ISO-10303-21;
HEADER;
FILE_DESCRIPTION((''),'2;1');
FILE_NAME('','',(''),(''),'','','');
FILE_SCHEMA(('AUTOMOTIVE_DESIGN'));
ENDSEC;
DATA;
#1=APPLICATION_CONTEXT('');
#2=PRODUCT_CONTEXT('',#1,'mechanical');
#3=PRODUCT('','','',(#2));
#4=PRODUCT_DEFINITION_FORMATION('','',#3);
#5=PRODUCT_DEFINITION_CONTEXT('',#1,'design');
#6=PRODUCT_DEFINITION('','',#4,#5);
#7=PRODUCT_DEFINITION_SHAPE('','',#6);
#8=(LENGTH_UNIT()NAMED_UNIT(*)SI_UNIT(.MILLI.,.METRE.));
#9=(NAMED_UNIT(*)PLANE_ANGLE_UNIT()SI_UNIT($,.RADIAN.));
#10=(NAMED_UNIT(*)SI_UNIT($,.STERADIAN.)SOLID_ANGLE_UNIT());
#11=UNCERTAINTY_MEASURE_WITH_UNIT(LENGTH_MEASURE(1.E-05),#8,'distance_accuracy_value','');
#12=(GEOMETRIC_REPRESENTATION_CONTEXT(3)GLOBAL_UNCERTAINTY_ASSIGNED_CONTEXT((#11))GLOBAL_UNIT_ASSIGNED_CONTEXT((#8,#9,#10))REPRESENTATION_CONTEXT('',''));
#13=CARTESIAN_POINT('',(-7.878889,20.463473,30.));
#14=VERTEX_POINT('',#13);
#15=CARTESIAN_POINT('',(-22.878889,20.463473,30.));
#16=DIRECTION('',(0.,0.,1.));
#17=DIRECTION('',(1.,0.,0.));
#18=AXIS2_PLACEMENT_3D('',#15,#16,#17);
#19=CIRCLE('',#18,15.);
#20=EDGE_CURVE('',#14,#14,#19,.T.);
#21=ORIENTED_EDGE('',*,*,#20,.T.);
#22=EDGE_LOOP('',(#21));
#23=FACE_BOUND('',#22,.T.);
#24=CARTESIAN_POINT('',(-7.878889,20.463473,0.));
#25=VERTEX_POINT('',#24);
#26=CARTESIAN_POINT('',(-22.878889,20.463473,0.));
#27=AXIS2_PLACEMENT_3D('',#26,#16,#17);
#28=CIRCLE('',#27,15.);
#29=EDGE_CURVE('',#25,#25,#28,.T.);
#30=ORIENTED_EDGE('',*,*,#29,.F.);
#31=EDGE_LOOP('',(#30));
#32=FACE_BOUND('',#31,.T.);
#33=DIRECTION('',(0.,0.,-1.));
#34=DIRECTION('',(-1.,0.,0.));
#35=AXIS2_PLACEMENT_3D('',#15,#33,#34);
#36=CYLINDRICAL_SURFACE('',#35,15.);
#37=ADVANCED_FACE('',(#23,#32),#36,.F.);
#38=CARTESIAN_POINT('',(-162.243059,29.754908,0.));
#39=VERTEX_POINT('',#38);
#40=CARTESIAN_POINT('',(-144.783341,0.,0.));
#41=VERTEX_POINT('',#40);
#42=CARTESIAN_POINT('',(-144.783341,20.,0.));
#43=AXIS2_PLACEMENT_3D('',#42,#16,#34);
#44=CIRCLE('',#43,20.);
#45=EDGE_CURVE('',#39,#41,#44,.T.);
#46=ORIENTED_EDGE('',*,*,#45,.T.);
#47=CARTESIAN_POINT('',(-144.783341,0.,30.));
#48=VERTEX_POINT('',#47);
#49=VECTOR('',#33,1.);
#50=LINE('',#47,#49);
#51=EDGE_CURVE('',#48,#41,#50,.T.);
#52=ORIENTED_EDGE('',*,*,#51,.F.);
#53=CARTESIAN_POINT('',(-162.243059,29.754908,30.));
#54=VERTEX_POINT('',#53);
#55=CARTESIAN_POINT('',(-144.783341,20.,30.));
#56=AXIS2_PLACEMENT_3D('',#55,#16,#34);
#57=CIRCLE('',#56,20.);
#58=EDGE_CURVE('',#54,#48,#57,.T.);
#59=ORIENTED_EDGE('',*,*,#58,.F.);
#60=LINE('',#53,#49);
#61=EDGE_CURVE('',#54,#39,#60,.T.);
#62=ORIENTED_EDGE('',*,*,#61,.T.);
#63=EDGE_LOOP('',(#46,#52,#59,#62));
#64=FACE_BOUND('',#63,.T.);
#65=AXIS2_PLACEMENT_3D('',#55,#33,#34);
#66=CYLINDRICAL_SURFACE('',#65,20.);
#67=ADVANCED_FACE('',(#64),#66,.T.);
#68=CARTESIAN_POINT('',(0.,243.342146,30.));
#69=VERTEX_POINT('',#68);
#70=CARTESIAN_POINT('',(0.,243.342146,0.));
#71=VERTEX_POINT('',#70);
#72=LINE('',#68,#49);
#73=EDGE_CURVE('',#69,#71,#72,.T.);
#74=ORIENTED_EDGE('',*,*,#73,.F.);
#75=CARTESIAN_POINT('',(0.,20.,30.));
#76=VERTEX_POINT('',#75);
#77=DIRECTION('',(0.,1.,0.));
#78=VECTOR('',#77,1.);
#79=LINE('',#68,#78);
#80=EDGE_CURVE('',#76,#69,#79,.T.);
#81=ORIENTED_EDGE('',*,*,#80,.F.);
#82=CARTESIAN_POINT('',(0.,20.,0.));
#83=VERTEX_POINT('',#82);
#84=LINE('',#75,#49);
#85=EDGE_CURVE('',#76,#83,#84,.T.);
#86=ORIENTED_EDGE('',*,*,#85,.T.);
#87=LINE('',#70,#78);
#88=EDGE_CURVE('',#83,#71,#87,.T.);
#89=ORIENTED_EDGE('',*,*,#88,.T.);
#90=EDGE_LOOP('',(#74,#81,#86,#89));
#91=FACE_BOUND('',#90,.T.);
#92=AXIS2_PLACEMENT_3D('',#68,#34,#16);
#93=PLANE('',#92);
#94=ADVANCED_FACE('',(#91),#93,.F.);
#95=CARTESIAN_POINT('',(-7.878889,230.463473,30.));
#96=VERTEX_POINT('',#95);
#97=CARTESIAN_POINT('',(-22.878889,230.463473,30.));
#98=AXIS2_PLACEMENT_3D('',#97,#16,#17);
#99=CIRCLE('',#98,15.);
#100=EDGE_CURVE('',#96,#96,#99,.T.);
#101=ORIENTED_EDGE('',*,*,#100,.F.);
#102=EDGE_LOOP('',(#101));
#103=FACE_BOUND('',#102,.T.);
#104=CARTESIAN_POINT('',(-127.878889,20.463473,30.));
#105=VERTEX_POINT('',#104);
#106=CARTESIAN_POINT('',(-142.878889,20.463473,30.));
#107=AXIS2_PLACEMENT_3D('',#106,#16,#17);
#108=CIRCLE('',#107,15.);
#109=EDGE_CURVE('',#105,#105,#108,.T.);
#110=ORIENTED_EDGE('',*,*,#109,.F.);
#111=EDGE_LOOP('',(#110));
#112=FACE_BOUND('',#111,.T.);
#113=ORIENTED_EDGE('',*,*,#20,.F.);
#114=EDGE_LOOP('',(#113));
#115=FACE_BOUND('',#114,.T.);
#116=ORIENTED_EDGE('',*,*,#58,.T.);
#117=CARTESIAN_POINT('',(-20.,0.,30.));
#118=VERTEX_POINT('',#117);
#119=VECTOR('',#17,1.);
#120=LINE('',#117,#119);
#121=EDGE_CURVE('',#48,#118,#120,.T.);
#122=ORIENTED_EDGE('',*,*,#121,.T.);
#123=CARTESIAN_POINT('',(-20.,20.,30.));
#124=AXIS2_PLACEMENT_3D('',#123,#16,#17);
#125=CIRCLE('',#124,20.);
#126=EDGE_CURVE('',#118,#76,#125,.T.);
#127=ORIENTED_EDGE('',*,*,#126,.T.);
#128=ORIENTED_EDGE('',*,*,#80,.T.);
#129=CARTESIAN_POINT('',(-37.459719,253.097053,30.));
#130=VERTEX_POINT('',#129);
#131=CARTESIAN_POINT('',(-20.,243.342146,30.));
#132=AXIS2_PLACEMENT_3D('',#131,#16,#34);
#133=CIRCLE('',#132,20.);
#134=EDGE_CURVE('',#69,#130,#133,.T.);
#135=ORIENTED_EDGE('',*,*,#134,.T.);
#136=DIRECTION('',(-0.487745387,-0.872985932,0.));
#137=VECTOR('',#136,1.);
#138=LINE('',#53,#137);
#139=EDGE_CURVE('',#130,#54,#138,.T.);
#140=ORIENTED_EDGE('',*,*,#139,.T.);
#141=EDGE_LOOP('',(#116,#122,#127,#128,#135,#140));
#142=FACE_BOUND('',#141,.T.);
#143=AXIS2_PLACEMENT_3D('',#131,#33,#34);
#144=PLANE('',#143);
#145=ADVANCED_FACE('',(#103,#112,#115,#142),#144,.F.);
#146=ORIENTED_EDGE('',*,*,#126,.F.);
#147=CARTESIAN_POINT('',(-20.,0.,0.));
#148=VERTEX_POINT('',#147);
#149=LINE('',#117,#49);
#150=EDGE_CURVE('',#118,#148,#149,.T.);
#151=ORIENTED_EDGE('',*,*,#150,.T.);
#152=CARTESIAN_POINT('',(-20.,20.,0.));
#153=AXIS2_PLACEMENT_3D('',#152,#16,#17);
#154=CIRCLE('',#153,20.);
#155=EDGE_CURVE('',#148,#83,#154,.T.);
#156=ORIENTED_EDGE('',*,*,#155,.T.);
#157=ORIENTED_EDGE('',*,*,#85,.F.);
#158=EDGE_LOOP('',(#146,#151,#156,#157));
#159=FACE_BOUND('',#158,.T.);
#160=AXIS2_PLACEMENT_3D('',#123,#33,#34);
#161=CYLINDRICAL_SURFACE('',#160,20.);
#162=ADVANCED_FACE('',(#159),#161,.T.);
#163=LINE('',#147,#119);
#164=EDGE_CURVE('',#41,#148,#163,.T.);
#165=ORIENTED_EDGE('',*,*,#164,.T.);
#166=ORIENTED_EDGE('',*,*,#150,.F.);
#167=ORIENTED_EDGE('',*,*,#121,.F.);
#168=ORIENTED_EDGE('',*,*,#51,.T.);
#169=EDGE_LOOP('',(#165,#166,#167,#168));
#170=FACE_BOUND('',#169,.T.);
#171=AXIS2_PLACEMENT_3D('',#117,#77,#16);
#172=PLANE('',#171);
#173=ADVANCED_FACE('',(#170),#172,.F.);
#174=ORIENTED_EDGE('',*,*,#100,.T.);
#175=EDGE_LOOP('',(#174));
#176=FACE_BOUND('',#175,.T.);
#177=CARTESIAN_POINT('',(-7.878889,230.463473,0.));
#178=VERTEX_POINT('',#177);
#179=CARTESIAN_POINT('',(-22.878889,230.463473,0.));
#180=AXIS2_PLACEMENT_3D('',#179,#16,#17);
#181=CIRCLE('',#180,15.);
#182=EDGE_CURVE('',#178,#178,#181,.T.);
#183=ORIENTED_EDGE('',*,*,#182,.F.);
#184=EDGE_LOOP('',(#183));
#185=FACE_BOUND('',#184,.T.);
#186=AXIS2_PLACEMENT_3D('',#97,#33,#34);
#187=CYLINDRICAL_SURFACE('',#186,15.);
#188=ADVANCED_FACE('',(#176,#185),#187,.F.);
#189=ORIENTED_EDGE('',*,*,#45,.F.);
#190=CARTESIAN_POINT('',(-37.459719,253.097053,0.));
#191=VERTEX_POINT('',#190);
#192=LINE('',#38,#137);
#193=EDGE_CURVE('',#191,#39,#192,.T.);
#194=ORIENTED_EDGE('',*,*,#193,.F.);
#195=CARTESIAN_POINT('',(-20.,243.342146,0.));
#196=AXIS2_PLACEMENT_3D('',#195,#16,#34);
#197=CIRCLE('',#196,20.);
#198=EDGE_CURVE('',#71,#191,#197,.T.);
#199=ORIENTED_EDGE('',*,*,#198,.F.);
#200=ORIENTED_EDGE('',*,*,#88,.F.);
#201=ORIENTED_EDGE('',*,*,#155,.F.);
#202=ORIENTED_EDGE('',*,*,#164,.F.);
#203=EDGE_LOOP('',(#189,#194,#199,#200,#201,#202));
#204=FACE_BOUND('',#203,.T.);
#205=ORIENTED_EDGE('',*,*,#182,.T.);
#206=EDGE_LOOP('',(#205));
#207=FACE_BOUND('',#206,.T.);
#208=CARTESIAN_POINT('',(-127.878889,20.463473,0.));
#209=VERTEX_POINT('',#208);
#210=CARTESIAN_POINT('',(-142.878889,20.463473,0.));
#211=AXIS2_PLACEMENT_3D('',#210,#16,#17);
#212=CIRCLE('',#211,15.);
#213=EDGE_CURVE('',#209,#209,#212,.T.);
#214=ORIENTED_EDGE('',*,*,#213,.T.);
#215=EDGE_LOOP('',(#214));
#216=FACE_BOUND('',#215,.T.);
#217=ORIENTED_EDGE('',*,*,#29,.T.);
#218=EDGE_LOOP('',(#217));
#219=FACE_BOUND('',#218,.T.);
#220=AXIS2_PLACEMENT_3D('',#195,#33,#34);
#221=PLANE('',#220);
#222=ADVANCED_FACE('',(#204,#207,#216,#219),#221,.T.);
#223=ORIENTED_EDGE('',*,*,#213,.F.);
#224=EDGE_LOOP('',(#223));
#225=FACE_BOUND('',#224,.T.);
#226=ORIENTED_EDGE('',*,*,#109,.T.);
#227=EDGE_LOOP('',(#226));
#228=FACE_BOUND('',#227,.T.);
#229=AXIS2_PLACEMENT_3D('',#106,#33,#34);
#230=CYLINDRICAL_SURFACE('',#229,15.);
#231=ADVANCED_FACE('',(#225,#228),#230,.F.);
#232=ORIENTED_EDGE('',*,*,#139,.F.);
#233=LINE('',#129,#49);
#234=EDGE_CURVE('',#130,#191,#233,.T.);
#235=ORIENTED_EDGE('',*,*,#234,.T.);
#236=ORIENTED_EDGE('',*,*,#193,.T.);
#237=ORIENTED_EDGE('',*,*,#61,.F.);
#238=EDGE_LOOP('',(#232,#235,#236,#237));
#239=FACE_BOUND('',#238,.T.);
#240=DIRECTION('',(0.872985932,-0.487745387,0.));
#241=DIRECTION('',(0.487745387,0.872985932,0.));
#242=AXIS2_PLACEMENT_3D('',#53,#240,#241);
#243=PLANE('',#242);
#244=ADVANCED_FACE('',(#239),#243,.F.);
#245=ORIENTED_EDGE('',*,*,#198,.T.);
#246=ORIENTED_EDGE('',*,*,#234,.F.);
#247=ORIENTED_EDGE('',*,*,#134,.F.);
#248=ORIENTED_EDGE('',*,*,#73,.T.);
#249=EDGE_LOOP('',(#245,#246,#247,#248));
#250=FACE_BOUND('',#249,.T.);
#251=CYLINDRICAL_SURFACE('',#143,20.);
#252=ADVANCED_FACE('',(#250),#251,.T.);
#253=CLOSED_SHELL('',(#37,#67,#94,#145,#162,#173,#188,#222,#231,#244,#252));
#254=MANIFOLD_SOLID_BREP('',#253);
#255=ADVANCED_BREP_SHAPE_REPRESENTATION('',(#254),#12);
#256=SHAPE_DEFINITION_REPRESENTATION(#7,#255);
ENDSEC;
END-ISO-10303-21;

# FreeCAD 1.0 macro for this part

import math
import FreeCAD as App
import Part
import Sketcher

doc = App.newDocument("Part")
body = doc.addObject("PartDesign::Body", "Body")

# Sketch on XY plane
sketch1 = doc.addObject("Sketcher::SketchObject", "Sketch")
body.addObject(sketch1)
sketch1.AttachmentSupport = (doc.XY_Plane, [""])
sketch1.MapMode = "FlatFace"
sketch1.addGeometry([
    Part.LineSegment(App.Vector(-145, 0, 0), App.Vector(-20, 0, 0)),  # 0
    Part.ArcOfCircle(Part.Circle(App.Vector(-20, 20, 0), App.Vector(0, 0, 1), 20), math.radians(-90), math.radians(0)),  # 1
    Part.LineSegment(App.Vector(0, 20, 0), App.Vector(0, 243, 0)),  # 2
    Part.ArcOfCircle(Part.Circle(App.Vector(-20, 243, 0), App.Vector(0, 0, 1), 20), math.radians(0), math.radians(151)),  # 3
    Part.LineSegment(App.Vector(-37, 253, 0), App.Vector(-162, 30, 0)),  # 4
    Part.ArcOfCircle(Part.Circle(App.Vector(-145, 20, 0), App.Vector(0, 0, 1), 20), math.radians(151), math.radians(270)),  # 5
    Part.Circle(App.Vector(-23, 20, 0), App.Vector(0, 0, 1), 15),  # 6
    Part.Circle(App.Vector(-143, 20, 0), App.Vector(0, 0, 1), 15),  # 7
    Part.Circle(App.Vector(-23, 230, 0), App.Vector(0, 0, 1), 15),  # 8
], False)
sketch1.addConstraint([
    Sketcher.Constraint("Tangent", 0, 2, 1, 1),
    Sketcher.Constraint("Tangent", 1, 2, 2, 1),
    Sketcher.Constraint("Tangent", 2, 2, 3, 1),
    Sketcher.Constraint("Tangent", 3, 2, 4, 1),
    Sketcher.Constraint("Tangent", 4, 2, 5, 1),
    Sketcher.Constraint("Tangent", 5, 2, 0, 1),
    Sketcher.Constraint("Horizontal", 0),
    Sketcher.Constraint("Vertical", 2),
    Sketcher.Constraint("Equal", 1, 3),
    Sketcher.Constraint("Equal", 3, 5),
    Sketcher.Constraint("Equal", 6, 7),
    Sketcher.Constraint("Equal", 7, 8),
    Sketcher.Constraint("PointOnObject", 0, 2, -1),
    Sketcher.Constraint("PointOnObject", 1, 2, -2),
    Sketcher.Constraint("Horizontal", 6, 3, 7, 3),
    Sketcher.Constraint("Vertical", 6, 3, 8, 3),
    Sketcher.Constraint("Diameter", 6, 30.0),
    Sketcher.Constraint("Radius", 1, 20.0),
    Sketcher.Constraint("DistanceX", 7, 3, 6, 3, 120.0),
    Sketcher.Constraint("DistanceY", 6, 3, 8, 3, 210.0),
    Sketcher.Constraint("DistanceX", 0, 1, 0, 2, 124.783341),
    Sketcher.Constraint("Distance", 4, 255.83705),
    Sketcher.Constraint("DistanceX", 6, 3, -1, 1, 22.878889),
    Sketcher.Constraint("DistanceY", 8, 3, 3, 2, 22.633581),
])
pad1 = doc.addObject("PartDesign::Pad", "Pad")
body.addObject(pad1)
pad1.Profile = sketch1
pad1.Length = 30

doc.recompute()
